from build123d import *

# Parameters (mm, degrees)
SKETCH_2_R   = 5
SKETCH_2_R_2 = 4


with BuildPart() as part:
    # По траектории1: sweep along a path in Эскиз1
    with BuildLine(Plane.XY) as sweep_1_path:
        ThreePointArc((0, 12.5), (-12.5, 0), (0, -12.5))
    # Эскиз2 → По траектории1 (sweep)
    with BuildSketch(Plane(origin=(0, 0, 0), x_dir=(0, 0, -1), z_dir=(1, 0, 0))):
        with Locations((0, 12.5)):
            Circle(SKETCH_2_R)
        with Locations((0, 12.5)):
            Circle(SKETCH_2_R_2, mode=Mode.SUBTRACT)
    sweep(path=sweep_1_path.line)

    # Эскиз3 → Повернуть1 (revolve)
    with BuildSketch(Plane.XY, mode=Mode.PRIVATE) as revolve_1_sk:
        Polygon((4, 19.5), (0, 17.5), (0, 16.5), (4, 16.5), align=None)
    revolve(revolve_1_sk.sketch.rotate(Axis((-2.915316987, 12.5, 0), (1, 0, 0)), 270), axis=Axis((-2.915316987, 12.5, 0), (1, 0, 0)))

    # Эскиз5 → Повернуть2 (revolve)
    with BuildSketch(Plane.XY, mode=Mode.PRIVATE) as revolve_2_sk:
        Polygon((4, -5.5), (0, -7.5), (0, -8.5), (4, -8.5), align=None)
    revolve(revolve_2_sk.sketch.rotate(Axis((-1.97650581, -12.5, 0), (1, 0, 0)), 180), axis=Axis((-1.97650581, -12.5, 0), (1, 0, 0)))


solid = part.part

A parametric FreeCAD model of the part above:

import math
import FreeCAD as App
import Part
import Sketcher

V = App.Vector


def add_polygon(sketch, points):
    """Adds a closed chain of lines whose ends are joined by coincident constraints."""
    first, n = sketch.GeometryCount, len(points)
    for a, b in zip(points, points[1:] + points[:1]):
        sketch.addGeometry(Part.LineSegment(App.Vector(*a, 0), App.Vector(*b, 0)), False)
    for i in range(n):
        sketch.addConstraint(Sketcher.Constraint("Coincident", first + i, 2, first + (i + 1) % n, 1))

doc = App.newDocument("Part")
body = doc.addObject("PartDesign::Body", "Body")

# Sketch on YZ plane
sketch1 = body.newObject("Sketcher::SketchObject", "Sketch")
sketch1.AttachmentSupport = (doc.getObject("YZ_Plane"), [""])
sketch1.MapMode = "FlatFace"
sketch1.addGeometry(Part.Circle(V(12.5, 0, 0), V(0, 0, 1), 5), False)
sketch1.addGeometry(Part.Circle(V(12.5, 0, 0), V(0, 0, 1), 4), False)
sketch1.addConstraint(Sketcher.Constraint("Coincident", 1, 3, 0, 3))
sketch1.addConstraint(Sketcher.Constraint("PointOnObject", 0, 3, -1))
sketch1.addConstraint(Sketcher.Constraint("Diameter", 0, 10.0))
sketch1.addConstraint(Sketcher.Constraint("Diameter", 1, 8.0))
sketch1.addConstraint(Sketcher.Constraint("DistanceX", -1, 1, 0, 3, 12.5))

# Sketch on XY plane
sketch2 = body.newObject("Sketcher::SketchObject", "Sketch001")
sketch2.AttachmentSupport = (doc.getObject("XY_Plane"), [""])
sketch2.MapMode = "FlatFace"
sketch2.addGeometry(Part.ArcOfCircle(Part.Circle(V(0, 0, 0), V(0, 0, 1), 12.5), math.radians(90), math.radians(270)), False)
sketch2.addConstraint(Sketcher.Constraint("Coincident", 0, 3, -1, 1))
sketch2.addConstraint(Sketcher.Constraint("PointOnObject", 0, 1, -2))
sketch2.addConstraint(Sketcher.Constraint("PointOnObject", 0, 2, -2))
sketch2.addConstraint(Sketcher.Constraint("Radius", 0, 12.5))
doc.recompute()

additivepipe = body.newObject("PartDesign::AdditivePipe", "AdditivePipe")
additivepipe.Profile = sketch1
additivepipe.Spine = (sketch2, ["Edge1"])

# Sketch on XY plane
sketch3 = body.newObject("Sketcher::SketchObject", "Sketch002")
sketch3.AttachmentSupport = (doc.getObject("XY_Plane"), [""])
sketch3.MapMode = "FlatFace"
add_polygon(sketch3, [(4, 19.5), (0, 17.5), (0, 16.5), (4, 16.5)])  # lines 0-3
sketch3.addGeometry(Part.LineSegment(V(0, 12.5, 0), V(4, 12.5, 0)), True)  # axis
sketch3.addConstraint(Sketcher.Constraint("Vertical", 1))
sketch3.addConstraint(Sketcher.Constraint("Horizontal", 2))
sketch3.addConstraint(Sketcher.Constraint("Vertical", 3))
sketch3.addConstraint(Sketcher.Constraint("Horizontal", 4))
sketch3.addConstraint(Sketcher.Constraint("PointOnObject", 0, 2, -2))
sketch3.addConstraint(Sketcher.Constraint("PointOnObject", 4, 1, -2))
sketch3.addConstraint(Sketcher.Constraint("Vertical", 3, 2, 4, 2))
sketch3.addConstraint(Sketcher.Constraint("DistanceX", 2, 1, 2, 2, 4.0))
sketch3.addConstraint(Sketcher.Constraint("DistanceY", 1, 2, 1, 1, 1.0))
sketch3.addConstraint(Sketcher.Constraint("DistanceY", 3, 1, 3, 2, 3.0))
sketch3.addConstraint(Sketcher.Constraint("DistanceY", 4, 1, 1, 2, 4.0))
sketch3.addConstraint(Sketcher.Constraint("DistanceY", -1, 1, 0, 2, 17.5))
revolution = body.newObject("PartDesign::Revolution", "Revolution")
revolution.Profile = sketch3
revolution.ReferenceAxis = (sketch3, ["Axis0"])
revolution.Angle = 360

# Sketch on XY plane
sketch4 = body.newObject("Sketcher::SketchObject", "Sketch003")
sketch4.AttachmentSupport = (doc.getObject("XY_Plane"), [""])
sketch4.MapMode = "FlatFace"
add_polygon(sketch4, [(4, -5.5), (0, -7.5), (0, -8.5), (4, -8.5)])  # lines 0-3
sketch4.addGeometry(Part.LineSegment(V(0, -12.5, 0), V(4, -12.5, 0)), True)  # axis
sketch4.addConstraint(Sketcher.Constraint("Vertical", 1))
sketch4.addConstraint(Sketcher.Constraint("Horizontal", 2))
sketch4.addConstraint(Sketcher.Constraint("Vertical", 3))
sketch4.addConstraint(Sketcher.Constraint("Horizontal", 4))
sketch4.addConstraint(Sketcher.Constraint("PointOnObject", 0, 2, -2))
sketch4.addConstraint(Sketcher.Constraint("PointOnObject", 4, 1, -2))
sketch4.addConstraint(Sketcher.Constraint("Vertical", 3, 2, 4, 2))
sketch4.addConstraint(Sketcher.Constraint("DistanceX", 2, 1, 2, 2, 4.0))
sketch4.addConstraint(Sketcher.Constraint("DistanceY", 1, 2, 1, 1, 1.0))
sketch4.addConstraint(Sketcher.Constraint("DistanceY", 3, 1, 3, 2, 3.0))
sketch4.addConstraint(Sketcher.Constraint("DistanceY", 4, 1, 1, 2, 4.0))
sketch4.addConstraint(Sketcher.Constraint("DistanceY", 0, 2, -1, 1, 7.5))
revolution2 = body.newObject("PartDesign::Revolution", "Revolution001")
revolution2.Profile = sketch4
revolution2.ReferenceAxis = (sketch4, ["Axis0"])
revolution2.Angle = 360

doc.recompute()
